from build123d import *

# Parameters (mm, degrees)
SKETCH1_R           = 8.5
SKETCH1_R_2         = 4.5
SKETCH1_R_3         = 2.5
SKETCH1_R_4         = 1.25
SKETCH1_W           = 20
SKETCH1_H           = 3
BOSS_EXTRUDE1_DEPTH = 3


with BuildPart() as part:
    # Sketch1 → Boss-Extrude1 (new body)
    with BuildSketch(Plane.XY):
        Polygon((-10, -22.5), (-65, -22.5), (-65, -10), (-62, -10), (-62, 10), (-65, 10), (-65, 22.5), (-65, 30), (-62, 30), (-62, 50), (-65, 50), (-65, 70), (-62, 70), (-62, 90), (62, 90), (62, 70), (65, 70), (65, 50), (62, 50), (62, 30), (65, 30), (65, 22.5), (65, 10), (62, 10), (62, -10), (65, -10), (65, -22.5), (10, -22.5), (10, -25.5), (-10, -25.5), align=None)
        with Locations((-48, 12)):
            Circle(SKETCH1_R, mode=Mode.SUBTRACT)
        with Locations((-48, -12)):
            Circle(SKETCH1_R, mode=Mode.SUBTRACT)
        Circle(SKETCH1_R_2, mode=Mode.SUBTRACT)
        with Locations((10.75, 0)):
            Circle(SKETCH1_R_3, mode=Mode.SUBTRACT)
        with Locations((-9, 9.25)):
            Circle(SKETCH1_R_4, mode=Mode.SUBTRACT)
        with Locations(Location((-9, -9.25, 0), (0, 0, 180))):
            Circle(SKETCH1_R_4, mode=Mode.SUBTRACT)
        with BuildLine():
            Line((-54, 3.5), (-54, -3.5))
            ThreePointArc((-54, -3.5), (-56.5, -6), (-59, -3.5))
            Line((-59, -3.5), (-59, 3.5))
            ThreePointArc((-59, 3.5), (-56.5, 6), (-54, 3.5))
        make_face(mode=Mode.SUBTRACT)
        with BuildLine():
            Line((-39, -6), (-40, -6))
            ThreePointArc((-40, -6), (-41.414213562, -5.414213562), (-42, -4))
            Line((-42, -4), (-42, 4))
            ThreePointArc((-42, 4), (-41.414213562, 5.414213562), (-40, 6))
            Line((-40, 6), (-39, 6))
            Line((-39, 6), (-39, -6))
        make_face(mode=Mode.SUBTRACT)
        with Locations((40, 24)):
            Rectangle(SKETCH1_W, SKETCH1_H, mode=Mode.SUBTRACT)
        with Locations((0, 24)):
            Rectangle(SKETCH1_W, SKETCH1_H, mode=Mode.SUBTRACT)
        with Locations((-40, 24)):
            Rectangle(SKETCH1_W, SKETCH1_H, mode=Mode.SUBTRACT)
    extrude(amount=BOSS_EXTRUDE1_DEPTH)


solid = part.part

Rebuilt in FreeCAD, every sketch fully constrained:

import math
import FreeCAD as App
import Part
import Sketcher

doc = App.newDocument("Part")
params = doc.addObject("Spreadsheet::Sheet", "Params")
for row, (alias, value) in enumerate([
    ("sketch1_diameter", "5 mm"),
    ("sketch1_diameter2", "9 mm"),
    ("sketch1_diameter3", "17 mm"),
    ("sketch1_radius", "2 mm"),
    ("sketch1_diameter4", "2.5 mm"),
    ("pad1_length", "3 mm"),
], start=1):
    params.set(f"A{row}", alias)
    params.set(f"B{row}", "=" + value)
    params.setAlias(f"B{row}", alias)

body = doc.addObject("PartDesign::Body", "Body")

# Sketch on XY plane
sketch1 = body.newObject("Sketcher::SketchObject", "Sketch")
sketch1.AttachmentSupport = (doc.getObject("XY_Plane"), [""])
sketch1.MapMode = "FlatFace"
sketch1.addGeometry(Part.LineSegment(App.Vector(-65, -22.5, 0), App.Vector(-10, -22.5, 0)), False)
sketch1.addGeometry(Part.LineSegment(App.Vector(-10, -22.5, 0), App.Vector(-10, -25.5, 0)), False)
sketch1.addGeometry(Part.LineSegment(App.Vector(-10, -25.5, 0), App.Vector(10, -25.5, 0)), False)
sketch1.addGeometry(Part.LineSegment(App.Vector(10, -25.5, 0), App.Vector(10, -22.5, 0)), False)
sketch1.addGeometry(Part.LineSegment(App.Vector(10, -22.5, 0), App.Vector(65, -22.5, 0)), False)
sketch1.addGeometry(Part.LineSegment(App.Vector(65, -22.5, 0), App.Vector(65, -10, 0)), False)
sketch1.addGeometry(Part.LineSegment(App.Vector(65, -10, 0), App.Vector(62, -10, 0)), False)
sketch1.addGeometry(Part.LineSegment(App.Vector(62, -10, 0), App.Vector(62, 10, 0)), False)
sketch1.addGeometry(Part.LineSegment(App.Vector(62, 10, 0), App.Vector(65, 10, 0)), False)
sketch1.addGeometry(Part.LineSegment(App.Vector(65, 10, 0), App.Vector(65, 30, 0)), False)
sketch1.addGeometry(Part.LineSegment(App.Vector(65, 30, 0), App.Vector(62, 30, 0)), False)
sketch1.addGeometry(Part.LineSegment(App.Vector(62, 30, 0), App.Vector(62, 50, 0)), False)
sketch1.addGeometry(Part.LineSegment(App.Vector(62, 50, 0), App.Vector(65, 50, 0)), False)
sketch1.addGeometry(Part.LineSegment(App.Vector(65, 50, 0), App.Vector(65, 70, 0)), False)
sketch1.addGeometry(Part.LineSegment(App.Vector(65, 70, 0), App.Vector(62, 70, 0)), False)
sketch1.addGeometry(Part.LineSegment(App.Vector(62, 70, 0), App.Vector(62, 90, 0)), False)
sketch1.addGeometry(Part.LineSegment(App.Vector(62, 90, 0), App.Vector(-62, 90, 0)), False)
sketch1.addGeometry(Part.LineSegment(App.Vector(-62, 90, 0), App.Vector(-62, 70, 0)), False)
sketch1.addGeometry(Part.LineSegment(App.Vector(-62, 70, 0), App.Vector(-65, 70, 0)), False)
sketch1.addGeometry(Part.LineSegment(App.Vector(-65, 70, 0), App.Vector(-65, 50, 0)), False)
sketch1.addGeometry(Part.LineSegment(App.Vector(-65, 50, 0), App.Vector(-62, 50, 0)), False)
sketch1.addGeometry(Part.LineSegment(App.Vector(-62, 50, 0), App.Vector(-62, 30, 0)), False)
sketch1.addGeometry(Part.LineSegment(App.Vector(-62, 30, 0), App.Vector(-65, 30, 0)), False)
sketch1.addGeometry(Part.LineSegment(App.Vector(-65, 30, 0), App.Vector(-65, 10, 0)), False)
sketch1.addGeometry(Part.LineSegment(App.Vector(-65, 10, 0), App.Vector(-62, 10, 0)), False)
sketch1.addGeometry(Part.LineSegment(App.Vector(-62, 10, 0), App.Vector(-62, -10, 0)), False)
sketch1.addGeometry(Part.LineSegment(App.Vector(-62, -10, 0), App.Vector(-65, -10, 0)), False)
sketch1.addGeometry(Part.LineSegment(App.Vector(-65, -10, 0), App.Vector(-65, -22.5, 0)), False)
sketch1.addGeometry(Part.Circle(App.Vector(10.75, 0, 0), App.Vector(0, 0, 1), 2.5), False)
sketch1.addGeometry(Part.Circle(App.Vector(0, 0, 0), App.Vector(0, 0, 1), 4.5), False)
sketch1.addGeometry(Part.Circle(App.Vector(-9, -9.25, 0), App.Vector(0, 0, 1), 1.25), False)
sketch1.addGeometry(Part.Circle(App.Vector(-48, -12, 0), App.Vector(0, 0, 1), 8.5), False)
sketch1.addGeometry(Part.LineSegment(App.Vector(-39, -6, 0), App.Vector(-40, -6, 0)), False)
sketch1.addGeometry(Part.ArcOfCircle(Part.Circle(App.Vector(-40, -4, 0), App.Vector(0, 0, 1), 2), math.radians(-180), math.radians(-90)), False)
sketch1.addGeometry(Part.LineSegment(App.Vector(-42, -4, 0), App.Vector(-42, 4, 0)), False)
sketch1.addGeometry(Part.ArcOfCircle(Part.Circle(App.Vector(-40, 4, 0), App.Vector(0, 0, 1), 2), math.radians(90), math.radians(180)), False)
sketch1.addGeometry(Part.LineSegment(App.Vector(-40, 6, 0), App.Vector(-39, 6, 0)), False)
sketch1.addGeometry(Part.LineSegment(App.Vector(-39, 6, 0), App.Vector(-39, -6, 0)), False)
sketch1.addGeometry(Part.LineSegment(App.Vector(-54, 3.5, 0), App.Vector(-54, -3.5, 0)), False)
sketch1.addGeometry(Part.ArcOfCircle(Part.Circle(App.Vector(-56.5, -3.5, 0), App.Vector(0, 0, 1), 2.5), math.radians(180), math.radians(360)), False)
sketch1.addGeometry(Part.LineSegment(App.Vector(-59, -3.5, 0), App.Vector(-59, 3.5, 0)), False)
sketch1.addGeometry(Part.ArcOfCircle(Part.Circle(App.Vector(-56.5, 3.5, 0), App.Vector(0, 0, 1), 2.5), math.radians(0), math.radians(180)), False)
sketch1.addGeometry(Part.LineSegment(App.Vector(30, 22.5, 0), App.Vector(30, 25.5, 0)), False)
sketch1.addGeometry(Part.LineSegment(App.Vector(30, 25.5, 0), App.Vector(50, 25.5, 0)), False)
sketch1.addGeometry(Part.LineSegment(App.Vector(50, 25.5, 0), App.Vector(50, 22.5, 0)), False)
sketch1.addGeometry(Part.LineSegment(App.Vector(50, 22.5, 0), App.Vector(30, 22.5, 0)), False)
sketch1.addGeometry(Part.LineSegment(App.Vector(-10, 22.5, 0), App.Vector(-10, 25.5, 0)), False)
sketch1.addGeometry(Part.LineSegment(App.Vector(-10, 25.5, 0), App.Vector(10, 25.5, 0)), False)
sketch1.addGeometry(Part.LineSegment(App.Vector(10, 25.5, 0), App.Vector(10, 22.5, 0)), False)
sketch1.addGeometry(Part.LineSegment(App.Vector(10, 22.5, 0), App.Vector(-10, 22.5, 0)), False)
sketch1.addGeometry(Part.Circle(App.Vector(-9, 9.25, 0), App.Vector(0, 0, 1), 1.25), False)
sketch1.addGeometry(Part.Circle(App.Vector(-48, 12, 0), App.Vector(0, 0, 1), 8.5), False)
sketch1.addGeometry(Part.LineSegment(App.Vector(-50, 22.5, 0), App.Vector(-50, 25.5, 0)), False)
sketch1.addGeometry(Part.LineSegment(App.Vector(-50, 25.5, 0), App.Vector(-30, 25.5, 0)), False)
sketch1.addGeometry(Part.LineSegment(App.Vector(-30, 25.5, 0), App.Vector(-30, 22.5, 0)), False)
sketch1.addGeometry(Part.LineSegment(App.Vector(-30, 22.5, 0), App.Vector(-50, 22.5, 0)), False)
sketch1.addConstraint(Sketcher.Constraint("Coincident", 0, 2, 1, 1))
sketch1.addConstraint(Sketcher.Constraint("Coincident", 1, 2, 2, 1))
sketch1.addConstraint(Sketcher.Constraint("Coincident", 2, 2, 3, 1))
sketch1.addConstraint(Sketcher.Constraint("Coincident", 3, 2, 4, 1))
sketch1.addConstraint(Sketcher.Constraint("Coincident", 4, 2, 5, 1))
sketch1.addConstraint(Sketcher.Constraint("Coincident", 5, 2, 6, 1))
sketch1.addConstraint(Sketcher.Constraint("Coincident", 6, 2, 7, 1))
sketch1.addConstraint(Sketcher.Constraint("Coincident", 7, 2, 8, 1))
sketch1.addConstraint(Sketcher.Constraint("Coincident", 8, 2, 9, 1))
sketch1.addConstraint(Sketcher.Constraint("Coincident", 9, 2, 10, 1))
sketch1.addConstraint(Sketcher.Constraint("Coincident", 10, 2, 11, 1))
sketch1.addConstraint(Sketcher.Constraint("Coincident", 11, 2, 12, 1))
sketch1.addConstraint(Sketcher.Constraint("Coincident", 12, 2, 13, 1))
sketch1.addConstraint(Sketcher.Constraint("Coincident", 13, 2, 14, 1))
sketch1.addConstraint(Sketcher.Constraint("Coincident", 14, 2, 15, 1))
sketch1.addConstraint(Sketcher.Constraint("Coincident", 15, 2, 16, 1))
sketch1.addConstraint(Sketcher.Constraint("Coincident", 16, 2, 17, 1))
sketch1.addConstraint(Sketcher.Constraint("Coincident", 17, 2, 18, 1))
sketch1.addConstraint(Sketcher.Constraint("Coincident", 18, 2, 19, 1))
sketch1.addConstraint(Sketcher.Constraint("Coincident", 19, 2, 20, 1))
sketch1.addConstraint(Sketcher.Constraint("Coincident", 20, 2, 21, 1))
sketch1.addConstraint(Sketcher.Constraint("Coincident", 21, 2, 22, 1))
sketch1.addConstraint(Sketcher.Constraint("Coincident", 22, 2, 23, 1))
sketch1.addConstraint(Sketcher.Constraint("Coincident", 23, 2, 24, 1))
sketch1.addConstraint(Sketcher.Constraint("Coincident", 24, 2, 25, 1))
sketch1.addConstraint(Sketcher.Constraint("Coincident", 25, 2, 26, 1))
sketch1.addConstraint(Sketcher.Constraint("Coincident", 26, 2, 27, 1))
sketch1.addConstraint(Sketcher.Constraint("Coincident", 27, 2, 0, 1))
sketch1.addConstraint(Sketcher.Constraint("Tangent", 32, 2, 33, 2))
sketch1.addConstraint(Sketcher.Constraint("Tangent", 33, 1, 34, 1))
sketch1.addConstraint(Sketcher.Constraint("Tangent", 34, 2, 35, 2))
sketch1.addConstraint(Sketcher.Constraint("Tangent", 35, 1, 36, 1))
sketch1.addConstraint(Sketcher.Constraint("Coincident", 36, 2, 37, 1))
sketch1.addConstraint(Sketcher.Constraint("Coincident", 37, 2, 32, 1))
sketch1.addConstraint(Sketcher.Constraint("Tangent", 38, 2, 39, 2))
sketch1.addConstraint(Sketcher.Constraint("Tangent", 39, 1, 40, 1))
sketch1.addConstraint(Sketcher.Constraint("Tangent", 40, 2, 41, 2))
sketch1.addConstraint(Sketcher.Constraint("Tangent", 41, 1, 38, 1))
sketch1.addConstraint(Sketcher.Constraint("Coincident", 42, 2, 43, 1))
sketch1.addConstraint(Sketcher.Constraint("Coincident", 43, 2, 44, 1))
sketch1.addConstraint(Sketcher.Constraint("Coincident", 44, 2, 45, 1))
sketch1.addConstraint(Sketcher.Constraint("Coincident", 45, 2, 42, 1))
sketch1.addConstraint(Sketcher.Constraint("Coincident", 46, 2, 47, 1))
sketch1.addConstraint(Sketcher.Constraint("Coincident", 47, 2, 48, 1))
sketch1.addConstraint(Sketcher.Constraint("Coincident", 48, 2, 49, 1))
sketch1.addConstraint(Sketcher.Constraint("Coincident", 49, 2, 46, 1))
sketch1.addConstraint(Sketcher.Constraint("Coincident", 52, 2, 53, 1))
sketch1.addConstraint(Sketcher.Constraint("Coincident", 53, 2, 54, 1))
sketch1.addConstraint(Sketcher.Constraint("Coincident", 54, 2, 55, 1))
sketch1.addConstraint(Sketcher.Constraint("Coincident", 55, 2, 52, 1))
sketch1.addConstraint(Sketcher.Constraint("Horizontal", 0))
sketch1.addConstraint(Sketcher.Constraint("Vertical", 1))
sketch1.addConstraint(Sketcher.Constraint("Horizontal", 2))
sketch1.addConstraint(Sketcher.Constraint("Vertical", 3))
sketch1.addConstraint(Sketcher.Constraint("Horizontal", 4))
sketch1.addConstraint(Sketcher.Constraint("Vertical", 5))
sketch1.addConstraint(Sketcher.Constraint("Horizontal", 6))
sketch1.addConstraint(Sketcher.Constraint("Vertical", 7))
sketch1.addConstraint(Sketcher.Constraint("Horizontal", 8))
sketch1.addConstraint(Sketcher.Constraint("Vertical", 9))
sketch1.addConstraint(Sketcher.Constraint("Horizontal", 10))
sketch1.addConstraint(Sketcher.Constraint("Vertical", 11))
sketch1.addConstraint(Sketcher.Constraint("Horizontal", 12))
sketch1.addConstraint(Sketcher.Constraint("Vertical", 13))
sketch1.addConstraint(Sketcher.Constraint("Horizontal", 14))
sketch1.addConstraint(Sketcher.Constraint("Vertical", 15))
sketch1.addConstraint(Sketcher.Constraint("Horizontal", 16))
sketch1.addConstraint(Sketcher.Constraint("Vertical", 17))
sketch1.addConstraint(Sketcher.Constraint("Horizontal", 18))
sketch1.addConstraint(Sketcher.Constraint("Vertical", 19))
sketch1.addConstraint(Sketcher.Constraint("Horizontal", 20))
sketch1.addConstraint(Sketcher.Constraint("Vertical", 21))
sketch1.addConstraint(Sketcher.Constraint("Horizontal", 22))
sketch1.addConstraint(Sketcher.Constraint("Vertical", 23))
sketch1.addConstraint(Sketcher.Constraint("Horizontal", 24))
sketch1.addConstraint(Sketcher.Constraint("Vertical", 25))
sketch1.addConstraint(Sketcher.Constraint("Horizontal", 26))
sketch1.addConstraint(Sketcher.Constraint("Vertical", 27))
sketch1.addConstraint(Sketcher.Constraint("Horizontal", 32))
sketch1.addConstraint(Sketcher.Constraint("Vertical", 34))
sketch1.addConstraint(Sketcher.Constraint("Horizontal", 36))
sketch1.addConstraint(Sketcher.Constraint("Vertical", 37))
sketch1.addConstraint(Sketcher.Constraint("Vertical", 38))
sketch1.addConstraint(Sketcher.Constraint("Vertical", 40))
sketch1.addConstraint(Sketcher.Constraint("Vertical", 42))
sketch1.addConstraint(Sketcher.Constraint("Horizontal", 43))
sketch1.addConstraint(Sketcher.Constraint("Vertical", 44))
sketch1.addConstraint(Sketcher.Constraint("Horizontal", 45))
sketch1.addConstraint(Sketcher.Constraint("Vertical", 46))
sketch1.addConstraint(Sketcher.Constraint("Horizontal", 47))
sketch1.addConstraint(Sketcher.Constraint("Vertical", 48))
sketch1.addConstraint(Sketcher.Constraint("Horizontal", 49))
sketch1.addConstraint(Sketcher.Constraint("Vertical", 52))
sketch1.addConstraint(Sketcher.Constraint("Horizontal", 53))
sketch1.addConstraint(Sketcher.Constraint("Vertical", 54))
sketch1.addConstraint(Sketcher.Constraint("Horizontal", 55))
sketch1.addConstraint(Sketcher.Constraint("Coincident", 29, 3, -1, 1))
sketch1.addConstraint(Sketcher.Constraint("Equal", 33, 35))
sketch1.addConstraint(Sketcher.Constraint("Equal", 28, 39))
sketch1.addConstraint(Sketcher.Constraint("Equal", 30, 50))
sketch1.addConstraint(Sketcher.Constraint("Equal", 31, 51))
sketch1.addConstraint(Sketcher.Constraint("Symmetric", 5, 2, 23, 2, -1, 1))
sketch1.addConstraint(Sketcher.Constraint("Symmetric", 7, 2, 25, 2, -1, 1))
sketch1.addConstraint(Sketcher.Constraint("Symmetric", 2, 2, 46, 2, -1, 1))
sketch1.addConstraint(Sketcher.Constraint("Symmetric", 0, 2, 48, 2, -1, 1))
sketch1.addConstraint(Sketcher.Constraint("Symmetric", 0, 2, 3, 2, -2))
sketch1.addConstraint(Sketcher.Constraint("Symmetric", 14, 2, 17, 2, -2))
sketch1.addConstraint(Sketcher.Constraint("Symmetric", 12, 2, 19, 2, -2))
sketch1.addConstraint(Sketcher.Constraint("Symmetric", 10, 2, 21, 2, -2))
sketch1.addConstraint(Sketcher.Constraint("Symmetric", 8, 2, 23, 2, -2))
sketch1.addConstraint(Sketcher.Constraint("Symmetric", 43, 2, 52, 2, -2))
sketch1.addConstraint(Sketcher.Constraint("Symmetric", 45, 2, 54, 2, -2))
sketch1.addConstraint(Sketcher.Constraint("Symmetric", 30, 3, 50, 3, -1))
sketch1.addConstraint(Sketcher.Constraint("Symmetric", 31, 3, 51, 3, -1))
sketch1.addConstraint(Sketcher.Constraint("PointOnObject", 28, 3, -1))
sketch1.addConstraint(Sketcher.Constraint("Horizontal", 43, 2, 46, 2))
sketch1.addConstraint(Sketcher.Constraint("Horizontal", 45, 2, 48, 2))
sketch1.addConstraint(Sketcher.Constraint("Vertical", 7, 2, 10, 2))
sketch1.addConstraint(Sketcher.Constraint("Vertical", 9, 2, 12, 2))
sketch1.addConstraint(Sketcher.Constraint("Vertical", 11, 2, 14, 2))
sketch1.addConstraint(Sketcher.Constraint("Vertical", 23, 2, 26, 2))
sketch1.addConstraint(Sketcher.Constraint("Equal", 2, 43))
sketch1.addConstraint(Sketcher.Constraint("Equal", 26, 1))
sketch1.addConstraint(Sketcher.Constraint("Equal", 55, 7))
sketch1.addConstraint(Sketcher.Constraint("Equal", 7, 9))
sketch1.addConstraint(Sketcher.Constraint("Equal", 9, 11))
sketch1.addConstraint(Sketcher.Constraint("Equal", 11, 13))
sketch1.addConstraint(Sketcher.Constraint("Equal", 13, 15))
sketch1.addConstraint(Sketcher.Constraint("Diameter", 28, 5.0))
sketch1.addConstraint(Sketcher.Constraint("Diameter", 29, 9.0))
sketch1.addConstraint(Sketcher.Constraint("Diameter", 31, 17.0))
sketch1.addConstraint(Sketcher.Constraint("Radius", 33, 2.0))
sketch1.addConstraint(Sketcher.Constraint("Diameter", 30, 2.5))
sketch1.addConstraint(Sketcher.Constraint("DistanceX", 0, 1, 0, 2, 55.0))
sketch1.addConstraint(Sketcher.Constraint("DistanceX", 2, 1, 2, 2, 20.0))
sketch1.addConstraint(Sketcher.Constraint("DistanceX", 6, 2, 6, 1, 3.0))
sketch1.addConstraint(Sketcher.Constraint("DistanceX", 32, 2, 32, 1, 1.0))
sketch1.addConstraint(Sketcher.Constraint("DistanceY", 34, 1, 34, 2, 8.0))
sketch1.addConstraint(Sketcher.Constraint("DistanceY", 38, 2, 38, 1, 7.0))
sketch1.addConstraint(Sketcher.Constraint("DistanceY", 5, 1, 5, 2, 12.5))
sketch1.addConstraint(Sketcher.Constraint("DistanceX", 30, 3, -1, 1, 9.0))
sketch1.addConstraint(Sketcher.Constraint("DistanceX", 31, 3, -1, 1, 48.0))
sketch1.addConstraint(Sketcher.Constraint("DistanceY", 31, 3, -1, 1, 12.0))
sketch1.addConstraint(Sketcher.Constraint("DistanceX", 33, 3, -1, 1, 40.0))
sketch1.addConstraint(Sketcher.Constraint("DistanceY", 33, 3, -1, 1, 4.0))
sketch1.addConstraint(Sketcher.Constraint("DistanceX", 38, 2, -1, 1, 54.0))
sketch1.addConstraint(Sketcher.Constraint("DistanceX", -1, 1, 42, 2, 30.0))
sketch1.addConstraint(Sketcher.Constraint("DistanceY", 27, 2, 39, 3, 19.0))
sketch1.addConstraint(Sketcher.Constraint("DistanceY", 30, 3, 50, 3, 18.5))
sketch1.addConstraint(Sketcher.Constraint("DistanceX", -1, 1, 28, 3, 10.75))
sketch1.setExpression("Constraints[128]", "Params.sketch1_diameter")
sketch1.setExpression("Constraints[129]", "Params.sketch1_diameter2")
sketch1.setExpression("Constraints[130]", "Params.sketch1_diameter3")
sketch1.setExpression("Constraints[131]", "Params.sketch1_radius")
sketch1.setExpression("Constraints[132]", "Params.sketch1_diameter4")
pad1 = body.newObject("PartDesign::Pad", "Pad")
pad1.Profile = sketch1
pad1.setExpression("Length", "Params.pad1_length")

doc.recompute()
